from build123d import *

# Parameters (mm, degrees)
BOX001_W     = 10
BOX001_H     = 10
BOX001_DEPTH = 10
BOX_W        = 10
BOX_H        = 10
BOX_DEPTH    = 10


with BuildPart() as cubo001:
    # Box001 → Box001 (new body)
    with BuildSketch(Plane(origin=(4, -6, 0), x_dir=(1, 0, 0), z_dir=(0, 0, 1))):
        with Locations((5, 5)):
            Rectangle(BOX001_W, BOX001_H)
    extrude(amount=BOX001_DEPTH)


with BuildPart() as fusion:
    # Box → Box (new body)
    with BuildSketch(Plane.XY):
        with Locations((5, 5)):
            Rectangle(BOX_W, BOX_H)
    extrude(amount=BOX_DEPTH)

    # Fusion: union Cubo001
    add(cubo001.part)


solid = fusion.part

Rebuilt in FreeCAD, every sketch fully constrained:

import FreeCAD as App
import Part
import Sketcher

V = App.Vector

doc = App.newDocument("Part")
body = doc.addObject("PartDesign::Body", "Body")

# Sketch on XY plane
sketch1 = body.newObject("Sketcher::SketchObject", "Sketch")
sketch1.AttachmentSupport = (doc.getObject("XY_Plane"), [""])
sketch1.MapMode = "FlatFace"
sketch1.addGeometry([
    Part.LineSegment(V(4, 4, 0), V(4, -6, 0)),
    Part.LineSegment(V(4, -6, 0), V(14, -6, 0)),
    Part.LineSegment(V(14, -6, 0), V(14, 4, 0)),
    Part.LineSegment(V(14, 4, 0), V(4, 4, 0)),
], False)
sketch1.addConstraint([
    Sketcher.Constraint("Coincident", 0, 2, 1, 1),
    Sketcher.Constraint("Coincident", 1, 2, 2, 1),
    Sketcher.Constraint("Coincident", 2, 2, 3, 1),
    Sketcher.Constraint("Coincident", 3, 2, 0, 1),
    Sketcher.Constraint("Vertical", 0),
    Sketcher.Constraint("Horizontal", 1),
    Sketcher.Constraint("Vertical", 2),
    Sketcher.Constraint("Horizontal", 3),
    Sketcher.Constraint("Equal", 3, 0),
    Sketcher.Constraint("DistanceX", 1, 1, 1, 2, 10.0),
    Sketcher.Constraint("DistanceX", -1, 1, 0, 2, 4.0),
    Sketcher.Constraint("DistanceY", 0, 2, -1, 1, 6.0),
])
pad1 = body.newObject("PartDesign::Pad", "Pad")
pad1.Profile = sketch1
pad1.Length = 10
body2 = doc.addObject("PartDesign::Body", "Body001")

# Sketch on XY plane
sketch2 = body2.newObject("Sketcher::SketchObject", "Sketch001")
sketch2.AttachmentSupport = (doc.getObject("XY_Plane001"), [""])
sketch2.MapMode = "FlatFace"
sketch2.addGeometry([
    Part.LineSegment(V(0, 10, 0), V(0, 0, 0)),
    Part.LineSegment(V(0, 0, 0), V(10, 0, 0)),
    Part.LineSegment(V(10, 0, 0), V(10, 10, 0)),
    Part.LineSegment(V(10, 10, 0), V(0, 10, 0)),
], False)
sketch2.addConstraint([
    Sketcher.Constraint("Coincident", 0, 2, 1, 1),
    Sketcher.Constraint("Coincident", 1, 2, 2, 1),
    Sketcher.Constraint("Coincident", 2, 2, 3, 1),
    Sketcher.Constraint("Coincident", 3, 2, 0, 1),
    Sketcher.Constraint("Vertical", 0),
    Sketcher.Constraint("Horizontal", 1),
    Sketcher.Constraint("Vertical", 2),
    Sketcher.Constraint("Horizontal", 3),
    Sketcher.Constraint("Coincident", 0, 2, -1, 1),
    Sketcher.Constraint("Equal", 3, 0),
    Sketcher.Constraint("DistanceX", 1, 1, 1, 2, 10.0),
])
pad2 = body2.newObject("PartDesign::Pad", "Pad001")
pad2.Profile = sketch2
pad2.Length = 10
doc.recompute()

boolean = body2.newObject("PartDesign::Boolean", "Boolean")
boolean.Type = "Fuse"
boolean.addObjects([body])

doc.recompute()
